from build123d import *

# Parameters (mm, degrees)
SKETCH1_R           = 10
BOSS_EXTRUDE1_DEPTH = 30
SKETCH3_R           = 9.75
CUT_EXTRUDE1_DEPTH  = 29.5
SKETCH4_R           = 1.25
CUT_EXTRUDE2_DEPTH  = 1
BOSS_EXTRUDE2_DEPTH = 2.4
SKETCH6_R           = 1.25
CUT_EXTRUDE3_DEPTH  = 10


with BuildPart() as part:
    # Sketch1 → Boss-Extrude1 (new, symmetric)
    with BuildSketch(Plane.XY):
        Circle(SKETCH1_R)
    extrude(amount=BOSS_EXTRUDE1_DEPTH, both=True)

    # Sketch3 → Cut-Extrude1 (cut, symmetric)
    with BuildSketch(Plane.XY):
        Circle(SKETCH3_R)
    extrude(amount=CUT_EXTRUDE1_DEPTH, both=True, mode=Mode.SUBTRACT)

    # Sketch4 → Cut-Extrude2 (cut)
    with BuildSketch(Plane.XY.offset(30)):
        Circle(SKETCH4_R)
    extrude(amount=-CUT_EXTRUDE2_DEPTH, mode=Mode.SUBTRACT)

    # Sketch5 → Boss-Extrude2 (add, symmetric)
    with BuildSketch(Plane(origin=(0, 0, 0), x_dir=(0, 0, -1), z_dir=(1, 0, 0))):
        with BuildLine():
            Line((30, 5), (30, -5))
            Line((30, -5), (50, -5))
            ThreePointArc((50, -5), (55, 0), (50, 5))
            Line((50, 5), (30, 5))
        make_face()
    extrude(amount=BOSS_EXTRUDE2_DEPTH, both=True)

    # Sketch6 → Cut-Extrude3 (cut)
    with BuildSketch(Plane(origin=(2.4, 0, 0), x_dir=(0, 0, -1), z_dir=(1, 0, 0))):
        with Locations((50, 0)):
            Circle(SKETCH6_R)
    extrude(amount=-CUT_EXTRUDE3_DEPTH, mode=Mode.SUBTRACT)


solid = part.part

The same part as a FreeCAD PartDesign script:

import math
import FreeCAD as App
import Part
import Sketcher

doc = App.newDocument("Part")
body = doc.addObject("PartDesign::Body", "Body")

sketch1 = body.newObject("Sketcher::SketchObject", "Sketch")
sketch1.AttachmentSupport = (doc.getObject("XY_Plane"), [""])
sketch1.MapMode = "FlatFace"
sketch1.addGeometry(Part.Circle(App.Vector(0, 0, 0), App.Vector(0, 0, 1), 10), False)
sketch1.addConstraint([
    Sketcher.Constraint("Coincident", 0, 3, -1, 1),
    Sketcher.Constraint("Diameter", 0, 20.0),
])
pad1 = body.newObject("PartDesign::Pad", "Pad")
pad1.Profile = sketch1
pad1.Length = 60
pad1.Midplane = True

sketch2 = body.newObject("Sketcher::SketchObject", "Sketch001")
sketch2.AttachmentSupport = (doc.getObject("XY_Plane"), [""])
sketch2.MapMode = "FlatFace"
sketch2.addGeometry(Part.Circle(App.Vector(0, 0, 0), App.Vector(0, 0, 1), 10), False)
sketch2.addConstraint([
    Sketcher.Constraint("Coincident", 0, 3, -1, 1),
    Sketcher.Constraint("Diameter", 0, 19.5),
])
pocket1 = body.newObject("PartDesign::Pocket", "Pocket")
pocket1.Profile = sketch2
pocket1.Length = 59
pocket1.Midplane = True

sketch3 = body.newObject("Sketcher::SketchObject", "Sketch002")
sketch3.AttachmentSupport = (doc.getObject("XY_Plane"), [""])
sketch3.MapMode = "FlatFace"
sketch3.AttachmentOffset = App.Placement(App.Vector(0, 0, 30), App.Rotation())
sketch3.addGeometry(Part.Circle(App.Vector(0, 0, 0), App.Vector(0, 0, 1), 1.2), False)
sketch3.addConstraint([
    Sketcher.Constraint("Coincident", 0, 3, -1, 1),
    Sketcher.Constraint("Diameter", 0, 2.5),
])
pocket2 = body.newObject("PartDesign::Pocket", "Pocket001")
pocket2.Profile = sketch3
pocket2.Length = 1

sketch4 = body.newObject("Sketcher::SketchObject", "Sketch003")
sketch4.AttachmentSupport = (doc.getObject("YZ_Plane"), [""])
sketch4.MapMode = "FlatFace"
sketch4.addGeometry([
    Part.LineSegment(App.Vector(5, -30, 0), App.Vector(-5, -30, 0)),
    Part.LineSegment(App.Vector(-5, -30, 0), App.Vector(-5, -50, 0)),
    Part.ArcOfCircle(Part.Circle(App.Vector(0, -50, 0), App.Vector(0, 0, 1), 5), math.radians(180), math.radians(360)),
    Part.LineSegment(App.Vector(5, -50, 0), App.Vector(5, -30, 0)),
], False)
sketch4.addConstraint([
    Sketcher.Constraint("Coincident", 0, 2, 1, 1),
    Sketcher.Constraint("Tangent", 1, 2, 2, 1),
    Sketcher.Constraint("Tangent", 2, 2, 3, 1),
    Sketcher.Constraint("Coincident", 3, 2, 0, 1),
    Sketcher.Constraint("Horizontal", 0),
    Sketcher.Constraint("Vertical", 1),
    Sketcher.Constraint("Vertical", 3),
    Sketcher.Constraint("PointOnObject", 2, 3, -2),
    Sketcher.Constraint("Radius", 2, 5.0),
    Sketcher.Constraint("DistanceY", 1, 2, 1, 1, 20.0),
    Sketcher.Constraint("DistanceY", 2, 3, -1, 1, 50.0),
])
pad2 = body.newObject("PartDesign::Pad", "Pad001")
pad2.Profile = sketch4
pad2.Length = 4.8
pad2.Midplane = True

sketch5 = body.newObject("Sketcher::SketchObject", "Sketch004")
sketch5.AttachmentSupport = (doc.getObject("YZ_Plane"), [""])
sketch5.MapMode = "FlatFace"
sketch5.AttachmentOffset = App.Placement(App.Vector(0, 0, 2.4), App.Rotation())
sketch5.addGeometry(Part.Circle(App.Vector(0, -50, 0), App.Vector(0, 0, 1), 1.2), False)
sketch5.addConstraint([
    Sketcher.Constraint("PointOnObject", 0, 3, -2),
    Sketcher.Constraint("Diameter", 0, 2.5),
    Sketcher.Constraint("DistanceY", 0, 3, -1, 1, 50.0),
])
pocket3 = body.newObject("PartDesign::Pocket", "Pocket002")
pocket3.Profile = sketch5
pocket3.Length = 10

doc.recompute()
